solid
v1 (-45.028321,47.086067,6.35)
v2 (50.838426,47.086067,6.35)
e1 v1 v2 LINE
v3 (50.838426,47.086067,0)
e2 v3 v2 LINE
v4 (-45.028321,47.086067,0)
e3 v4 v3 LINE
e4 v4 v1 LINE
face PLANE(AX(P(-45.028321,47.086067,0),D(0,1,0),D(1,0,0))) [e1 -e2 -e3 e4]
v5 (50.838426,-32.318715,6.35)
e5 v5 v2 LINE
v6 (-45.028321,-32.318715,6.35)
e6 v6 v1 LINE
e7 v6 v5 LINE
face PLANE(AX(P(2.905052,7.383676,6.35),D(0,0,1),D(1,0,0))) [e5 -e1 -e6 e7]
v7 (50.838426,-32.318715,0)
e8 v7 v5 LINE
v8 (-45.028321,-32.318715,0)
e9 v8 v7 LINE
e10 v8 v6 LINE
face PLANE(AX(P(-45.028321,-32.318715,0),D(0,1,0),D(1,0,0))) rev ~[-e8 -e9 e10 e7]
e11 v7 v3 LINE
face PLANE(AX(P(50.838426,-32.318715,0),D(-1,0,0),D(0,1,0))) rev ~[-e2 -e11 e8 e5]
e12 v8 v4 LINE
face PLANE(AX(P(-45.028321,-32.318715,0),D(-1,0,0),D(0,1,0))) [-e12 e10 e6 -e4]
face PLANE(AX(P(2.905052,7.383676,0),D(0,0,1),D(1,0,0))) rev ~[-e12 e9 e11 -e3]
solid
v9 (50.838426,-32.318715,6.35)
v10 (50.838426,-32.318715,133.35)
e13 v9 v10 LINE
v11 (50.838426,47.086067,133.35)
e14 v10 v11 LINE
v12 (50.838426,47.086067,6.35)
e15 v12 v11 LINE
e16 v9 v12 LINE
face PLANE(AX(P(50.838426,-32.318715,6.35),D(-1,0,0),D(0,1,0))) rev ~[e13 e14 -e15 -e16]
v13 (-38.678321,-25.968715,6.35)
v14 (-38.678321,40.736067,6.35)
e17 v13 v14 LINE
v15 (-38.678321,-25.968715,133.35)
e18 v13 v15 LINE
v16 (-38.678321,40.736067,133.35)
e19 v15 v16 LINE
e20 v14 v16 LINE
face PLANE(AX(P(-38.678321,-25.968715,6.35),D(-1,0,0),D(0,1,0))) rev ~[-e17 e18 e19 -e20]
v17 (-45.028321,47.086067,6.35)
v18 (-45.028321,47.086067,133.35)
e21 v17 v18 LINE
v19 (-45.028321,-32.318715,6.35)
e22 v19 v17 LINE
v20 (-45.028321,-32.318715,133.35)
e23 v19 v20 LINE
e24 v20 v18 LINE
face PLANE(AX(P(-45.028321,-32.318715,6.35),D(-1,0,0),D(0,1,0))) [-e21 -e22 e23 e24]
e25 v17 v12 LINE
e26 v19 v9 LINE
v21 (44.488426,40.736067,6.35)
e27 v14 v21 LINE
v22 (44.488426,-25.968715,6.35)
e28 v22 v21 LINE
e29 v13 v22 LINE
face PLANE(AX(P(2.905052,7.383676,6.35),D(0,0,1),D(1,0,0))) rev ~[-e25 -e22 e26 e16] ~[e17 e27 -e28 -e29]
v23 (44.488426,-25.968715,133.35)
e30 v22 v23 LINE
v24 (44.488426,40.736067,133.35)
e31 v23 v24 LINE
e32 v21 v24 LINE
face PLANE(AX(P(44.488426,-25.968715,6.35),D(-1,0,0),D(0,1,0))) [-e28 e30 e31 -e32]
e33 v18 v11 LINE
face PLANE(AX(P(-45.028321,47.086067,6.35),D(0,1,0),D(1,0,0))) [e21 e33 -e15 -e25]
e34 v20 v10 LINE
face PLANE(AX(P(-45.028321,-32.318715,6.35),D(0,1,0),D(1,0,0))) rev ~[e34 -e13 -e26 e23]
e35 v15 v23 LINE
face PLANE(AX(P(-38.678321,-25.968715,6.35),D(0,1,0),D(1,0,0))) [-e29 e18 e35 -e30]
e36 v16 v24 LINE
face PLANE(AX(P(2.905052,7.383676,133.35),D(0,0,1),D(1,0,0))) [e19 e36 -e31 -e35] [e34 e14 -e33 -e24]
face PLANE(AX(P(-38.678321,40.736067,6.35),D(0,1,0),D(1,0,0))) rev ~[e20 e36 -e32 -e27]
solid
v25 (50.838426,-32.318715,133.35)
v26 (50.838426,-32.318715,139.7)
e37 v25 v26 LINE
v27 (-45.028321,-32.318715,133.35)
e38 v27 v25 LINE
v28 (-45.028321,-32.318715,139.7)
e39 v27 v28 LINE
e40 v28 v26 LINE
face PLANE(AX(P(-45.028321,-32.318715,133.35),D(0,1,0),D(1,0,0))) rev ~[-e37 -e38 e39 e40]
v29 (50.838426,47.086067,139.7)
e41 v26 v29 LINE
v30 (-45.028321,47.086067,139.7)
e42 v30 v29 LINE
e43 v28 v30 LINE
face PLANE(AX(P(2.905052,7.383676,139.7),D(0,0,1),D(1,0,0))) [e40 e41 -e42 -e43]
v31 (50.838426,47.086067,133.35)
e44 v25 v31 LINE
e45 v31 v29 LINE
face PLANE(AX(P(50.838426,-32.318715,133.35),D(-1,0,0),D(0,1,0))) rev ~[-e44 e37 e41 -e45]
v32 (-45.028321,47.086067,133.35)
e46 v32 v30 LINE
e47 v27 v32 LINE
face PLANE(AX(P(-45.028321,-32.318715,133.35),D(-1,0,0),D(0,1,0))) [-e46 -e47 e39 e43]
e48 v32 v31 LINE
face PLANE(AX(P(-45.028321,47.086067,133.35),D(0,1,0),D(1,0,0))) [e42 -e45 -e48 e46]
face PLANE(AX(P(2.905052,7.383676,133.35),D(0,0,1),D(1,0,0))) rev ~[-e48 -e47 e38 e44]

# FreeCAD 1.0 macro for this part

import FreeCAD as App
import Part
import Sketcher

V = App.Vector
Q = App.Units.Quantity

doc = App.newDocument("Part")
body = doc.addObject("PartDesign::Body", "Body")

# Sketch on XY plane
sketch1 = body.newObject("Sketcher::SketchObject", "Sketch")
sketch1.AttachmentSupport = (doc.getObject("XY_Plane"), [""])
sketch1.MapMode = "FlatFace"
sketch1.addGeometry([
    Part.LineSegment(V(-45.028321, 47.086067, 0), V(-45.028321, -32.318715, 0)),
    Part.LineSegment(V(-45.028321, -32.318715, 0), V(50.838426, -32.318715, 0)),
    Part.LineSegment(V(50.838426, -32.318715, 0), V(50.838426, 47.086067, 0)),
    Part.LineSegment(V(50.838426, 47.086067, 0), V(-45.028321, 47.086067, 0)),
], False)
sketch1.addConstraint([
    Sketcher.Constraint("Coincident", 0, 2, 1, 1),
    Sketcher.Constraint("Coincident", 1, 2, 2, 1),
    Sketcher.Constraint("Coincident", 2, 2, 3, 1),
    Sketcher.Constraint("Coincident", 3, 2, 0, 1),
    Sketcher.Constraint("Vertical", 0),
    Sketcher.Constraint("Horizontal", 1),
    Sketcher.Constraint("Vertical", 2),
    Sketcher.Constraint("Horizontal", 3),
    Sketcher.Constraint("DistanceX", 1, 1, 1, 2, Q("95.866747 mm")),
    Sketcher.Constraint("DistanceY", 0, 2, 0, 1, Q("79.404783 mm")),
    Sketcher.Constraint("DistanceX", 0, 2, -1, 1, Q("45.028321 mm")),
    Sketcher.Constraint("DistanceY", 0, 2, -1, 1, Q("32.318715 mm")),
])
pad1 = body.newObject("PartDesign::Pad", "Pad")
pad1.Profile = sketch1
pad1.Length = Q("0.25 in")
body2 = doc.addObject("PartDesign::Body", "Body001")

# Sketch on XY plane
sketch2 = body2.newObject("Sketcher::SketchObject", "Sketch001")
sketch2.AttachmentSupport = (doc.getObject("XY_Plane001"), [""])
sketch2.MapMode = "FlatFace"
sketch2.AttachmentOffset = App.Placement(V(0, 0, 0.25 * 25.4), App.Rotation())
sketch2.addGeometry([
    Part.LineSegment(V(-45.028321, 47.086067, 0), V(-45.028321, -32.318715, 0)),  # 0
    Part.LineSegment(V(-45.028321, -32.318715, 0), V(50.838426, -32.318715, 0)),  # 1
    Part.LineSegment(V(50.838426, -32.318715, 0), V(50.838426, 47.086067, 0)),  # 2
    Part.LineSegment(V(50.838426, 47.086067, 0), V(-45.028321, 47.086067, 0)),  # 3
    Part.LineSegment(V(44.488426, -25.968715, 0), V(-38.678321, -25.968715, 0)),  # 4
    Part.LineSegment(V(-38.678321, -25.968715, 0), V(-38.678321, 40.736067, 0)),  # 5
    Part.LineSegment(V(-38.678321, 40.736067, 0), V(44.488426, 40.736067, 0)),  # 6
    Part.LineSegment(V(44.488426, 40.736067, 0), V(44.488426, -25.968715, 0)),  # 7
], False)
sketch2.addConstraint([
    Sketcher.Constraint("Coincident", 0, 2, 1, 1),
    Sketcher.Constraint("Coincident", 1, 2, 2, 1),
    Sketcher.Constraint("Coincident", 2, 2, 3, 1),
    Sketcher.Constraint("Coincident", 3, 2, 0, 1),
    Sketcher.Constraint("Coincident", 4, 2, 5, 1),
    Sketcher.Constraint("Coincident", 5, 2, 6, 1),
    Sketcher.Constraint("Coincident", 6, 2, 7, 1),
    Sketcher.Constraint("Coincident", 7, 2, 4, 1),
    Sketcher.Constraint("Vertical", 0),
    Sketcher.Constraint("Horizontal", 1),
    Sketcher.Constraint("Vertical", 2),
    Sketcher.Constraint("Horizontal", 3),
    Sketcher.Constraint("Horizontal", 4),
    Sketcher.Constraint("Vertical", 5),
    Sketcher.Constraint("Horizontal", 6),
    Sketcher.Constraint("Vertical", 7),
    Sketcher.Constraint("DistanceX", 0, 2, 4, 2, Q("0.25 in")),
    Sketcher.Constraint("DistanceY", 0, 2, 4, 2, Q("0.25 in")),
    Sketcher.Constraint("DistanceY", 5, 2, 3, 2, Q("0.25 in")),
    Sketcher.Constraint("DistanceX", 6, 2, 2, 2, Q("0.25 in")),
    Sketcher.Constraint("DistanceX", 1, 1, 1, 2, Q("95.866747 mm")),
    Sketcher.Constraint("DistanceY", 0, 2, 0, 1, Q("79.404783 mm")),
    Sketcher.Constraint("DistanceX", 0, 2, -1, 1, Q("45.028321 mm")),
    Sketcher.Constraint("DistanceY", 0, 2, -1, 1, Q("32.318715 mm")),
])
pad2 = body2.newObject("PartDesign::Pad", "Pad001")
pad2.Profile = sketch2
pad2.Length = Q("5 in")
body3 = doc.addObject("PartDesign::Body", "Body002")

# Sketch on XY plane
sketch3 = body3.newObject("Sketcher::SketchObject", "Sketch002")
sketch3.AttachmentSupport = (doc.getObject("XY_Plane002"), [""])
sketch3.MapMode = "FlatFace"
sketch3.AttachmentOffset = App.Placement(V(0, 0, 5.25 * 25.4), App.Rotation())
sketch3.addGeometry([
    Part.LineSegment(V(-45.028321, 47.086067, 0), V(-45.028321, -32.318715, 0)),
    Part.LineSegment(V(-45.028321, -32.318715, 0), V(50.838426, -32.318715, 0)),
    Part.LineSegment(V(50.838426, -32.318715, 0), V(50.838426, 47.086067, 0)),
    Part.LineSegment(V(50.838426, 47.086067, 0), V(-45.028321, 47.086067, 0)),
], False)
sketch3.addConstraint([
    Sketcher.Constraint("Coincident", 0, 2, 1, 1),
    Sketcher.Constraint("Coincident", 1, 2, 2, 1),
    Sketcher.Constraint("Coincident", 2, 2, 3, 1),
    Sketcher.Constraint("Coincident", 3, 2, 0, 1),
    Sketcher.Constraint("Vertical", 0),
    Sketcher.Constraint("Horizontal", 1),
    Sketcher.Constraint("Vertical", 2),
    Sketcher.Constraint("Horizontal", 3),
    Sketcher.Constraint("DistanceX", 1, 1, 1, 2, Q("95.866747 mm")),
    Sketcher.Constraint("DistanceY", 0, 2, 0, 1, Q("79.404783 mm")),
    Sketcher.Constraint("DistanceX", 0, 2, -1, 1, Q("45.028321 mm")),
    Sketcher.Constraint("DistanceY", 0, 2, -1, 1, Q("32.318715 mm")),
])
pad3 = body3.newObject("PartDesign::Pad", "Pad002")
pad3.Profile = sketch3
pad3.Length = Q("0.25 in")

doc.recompute()
